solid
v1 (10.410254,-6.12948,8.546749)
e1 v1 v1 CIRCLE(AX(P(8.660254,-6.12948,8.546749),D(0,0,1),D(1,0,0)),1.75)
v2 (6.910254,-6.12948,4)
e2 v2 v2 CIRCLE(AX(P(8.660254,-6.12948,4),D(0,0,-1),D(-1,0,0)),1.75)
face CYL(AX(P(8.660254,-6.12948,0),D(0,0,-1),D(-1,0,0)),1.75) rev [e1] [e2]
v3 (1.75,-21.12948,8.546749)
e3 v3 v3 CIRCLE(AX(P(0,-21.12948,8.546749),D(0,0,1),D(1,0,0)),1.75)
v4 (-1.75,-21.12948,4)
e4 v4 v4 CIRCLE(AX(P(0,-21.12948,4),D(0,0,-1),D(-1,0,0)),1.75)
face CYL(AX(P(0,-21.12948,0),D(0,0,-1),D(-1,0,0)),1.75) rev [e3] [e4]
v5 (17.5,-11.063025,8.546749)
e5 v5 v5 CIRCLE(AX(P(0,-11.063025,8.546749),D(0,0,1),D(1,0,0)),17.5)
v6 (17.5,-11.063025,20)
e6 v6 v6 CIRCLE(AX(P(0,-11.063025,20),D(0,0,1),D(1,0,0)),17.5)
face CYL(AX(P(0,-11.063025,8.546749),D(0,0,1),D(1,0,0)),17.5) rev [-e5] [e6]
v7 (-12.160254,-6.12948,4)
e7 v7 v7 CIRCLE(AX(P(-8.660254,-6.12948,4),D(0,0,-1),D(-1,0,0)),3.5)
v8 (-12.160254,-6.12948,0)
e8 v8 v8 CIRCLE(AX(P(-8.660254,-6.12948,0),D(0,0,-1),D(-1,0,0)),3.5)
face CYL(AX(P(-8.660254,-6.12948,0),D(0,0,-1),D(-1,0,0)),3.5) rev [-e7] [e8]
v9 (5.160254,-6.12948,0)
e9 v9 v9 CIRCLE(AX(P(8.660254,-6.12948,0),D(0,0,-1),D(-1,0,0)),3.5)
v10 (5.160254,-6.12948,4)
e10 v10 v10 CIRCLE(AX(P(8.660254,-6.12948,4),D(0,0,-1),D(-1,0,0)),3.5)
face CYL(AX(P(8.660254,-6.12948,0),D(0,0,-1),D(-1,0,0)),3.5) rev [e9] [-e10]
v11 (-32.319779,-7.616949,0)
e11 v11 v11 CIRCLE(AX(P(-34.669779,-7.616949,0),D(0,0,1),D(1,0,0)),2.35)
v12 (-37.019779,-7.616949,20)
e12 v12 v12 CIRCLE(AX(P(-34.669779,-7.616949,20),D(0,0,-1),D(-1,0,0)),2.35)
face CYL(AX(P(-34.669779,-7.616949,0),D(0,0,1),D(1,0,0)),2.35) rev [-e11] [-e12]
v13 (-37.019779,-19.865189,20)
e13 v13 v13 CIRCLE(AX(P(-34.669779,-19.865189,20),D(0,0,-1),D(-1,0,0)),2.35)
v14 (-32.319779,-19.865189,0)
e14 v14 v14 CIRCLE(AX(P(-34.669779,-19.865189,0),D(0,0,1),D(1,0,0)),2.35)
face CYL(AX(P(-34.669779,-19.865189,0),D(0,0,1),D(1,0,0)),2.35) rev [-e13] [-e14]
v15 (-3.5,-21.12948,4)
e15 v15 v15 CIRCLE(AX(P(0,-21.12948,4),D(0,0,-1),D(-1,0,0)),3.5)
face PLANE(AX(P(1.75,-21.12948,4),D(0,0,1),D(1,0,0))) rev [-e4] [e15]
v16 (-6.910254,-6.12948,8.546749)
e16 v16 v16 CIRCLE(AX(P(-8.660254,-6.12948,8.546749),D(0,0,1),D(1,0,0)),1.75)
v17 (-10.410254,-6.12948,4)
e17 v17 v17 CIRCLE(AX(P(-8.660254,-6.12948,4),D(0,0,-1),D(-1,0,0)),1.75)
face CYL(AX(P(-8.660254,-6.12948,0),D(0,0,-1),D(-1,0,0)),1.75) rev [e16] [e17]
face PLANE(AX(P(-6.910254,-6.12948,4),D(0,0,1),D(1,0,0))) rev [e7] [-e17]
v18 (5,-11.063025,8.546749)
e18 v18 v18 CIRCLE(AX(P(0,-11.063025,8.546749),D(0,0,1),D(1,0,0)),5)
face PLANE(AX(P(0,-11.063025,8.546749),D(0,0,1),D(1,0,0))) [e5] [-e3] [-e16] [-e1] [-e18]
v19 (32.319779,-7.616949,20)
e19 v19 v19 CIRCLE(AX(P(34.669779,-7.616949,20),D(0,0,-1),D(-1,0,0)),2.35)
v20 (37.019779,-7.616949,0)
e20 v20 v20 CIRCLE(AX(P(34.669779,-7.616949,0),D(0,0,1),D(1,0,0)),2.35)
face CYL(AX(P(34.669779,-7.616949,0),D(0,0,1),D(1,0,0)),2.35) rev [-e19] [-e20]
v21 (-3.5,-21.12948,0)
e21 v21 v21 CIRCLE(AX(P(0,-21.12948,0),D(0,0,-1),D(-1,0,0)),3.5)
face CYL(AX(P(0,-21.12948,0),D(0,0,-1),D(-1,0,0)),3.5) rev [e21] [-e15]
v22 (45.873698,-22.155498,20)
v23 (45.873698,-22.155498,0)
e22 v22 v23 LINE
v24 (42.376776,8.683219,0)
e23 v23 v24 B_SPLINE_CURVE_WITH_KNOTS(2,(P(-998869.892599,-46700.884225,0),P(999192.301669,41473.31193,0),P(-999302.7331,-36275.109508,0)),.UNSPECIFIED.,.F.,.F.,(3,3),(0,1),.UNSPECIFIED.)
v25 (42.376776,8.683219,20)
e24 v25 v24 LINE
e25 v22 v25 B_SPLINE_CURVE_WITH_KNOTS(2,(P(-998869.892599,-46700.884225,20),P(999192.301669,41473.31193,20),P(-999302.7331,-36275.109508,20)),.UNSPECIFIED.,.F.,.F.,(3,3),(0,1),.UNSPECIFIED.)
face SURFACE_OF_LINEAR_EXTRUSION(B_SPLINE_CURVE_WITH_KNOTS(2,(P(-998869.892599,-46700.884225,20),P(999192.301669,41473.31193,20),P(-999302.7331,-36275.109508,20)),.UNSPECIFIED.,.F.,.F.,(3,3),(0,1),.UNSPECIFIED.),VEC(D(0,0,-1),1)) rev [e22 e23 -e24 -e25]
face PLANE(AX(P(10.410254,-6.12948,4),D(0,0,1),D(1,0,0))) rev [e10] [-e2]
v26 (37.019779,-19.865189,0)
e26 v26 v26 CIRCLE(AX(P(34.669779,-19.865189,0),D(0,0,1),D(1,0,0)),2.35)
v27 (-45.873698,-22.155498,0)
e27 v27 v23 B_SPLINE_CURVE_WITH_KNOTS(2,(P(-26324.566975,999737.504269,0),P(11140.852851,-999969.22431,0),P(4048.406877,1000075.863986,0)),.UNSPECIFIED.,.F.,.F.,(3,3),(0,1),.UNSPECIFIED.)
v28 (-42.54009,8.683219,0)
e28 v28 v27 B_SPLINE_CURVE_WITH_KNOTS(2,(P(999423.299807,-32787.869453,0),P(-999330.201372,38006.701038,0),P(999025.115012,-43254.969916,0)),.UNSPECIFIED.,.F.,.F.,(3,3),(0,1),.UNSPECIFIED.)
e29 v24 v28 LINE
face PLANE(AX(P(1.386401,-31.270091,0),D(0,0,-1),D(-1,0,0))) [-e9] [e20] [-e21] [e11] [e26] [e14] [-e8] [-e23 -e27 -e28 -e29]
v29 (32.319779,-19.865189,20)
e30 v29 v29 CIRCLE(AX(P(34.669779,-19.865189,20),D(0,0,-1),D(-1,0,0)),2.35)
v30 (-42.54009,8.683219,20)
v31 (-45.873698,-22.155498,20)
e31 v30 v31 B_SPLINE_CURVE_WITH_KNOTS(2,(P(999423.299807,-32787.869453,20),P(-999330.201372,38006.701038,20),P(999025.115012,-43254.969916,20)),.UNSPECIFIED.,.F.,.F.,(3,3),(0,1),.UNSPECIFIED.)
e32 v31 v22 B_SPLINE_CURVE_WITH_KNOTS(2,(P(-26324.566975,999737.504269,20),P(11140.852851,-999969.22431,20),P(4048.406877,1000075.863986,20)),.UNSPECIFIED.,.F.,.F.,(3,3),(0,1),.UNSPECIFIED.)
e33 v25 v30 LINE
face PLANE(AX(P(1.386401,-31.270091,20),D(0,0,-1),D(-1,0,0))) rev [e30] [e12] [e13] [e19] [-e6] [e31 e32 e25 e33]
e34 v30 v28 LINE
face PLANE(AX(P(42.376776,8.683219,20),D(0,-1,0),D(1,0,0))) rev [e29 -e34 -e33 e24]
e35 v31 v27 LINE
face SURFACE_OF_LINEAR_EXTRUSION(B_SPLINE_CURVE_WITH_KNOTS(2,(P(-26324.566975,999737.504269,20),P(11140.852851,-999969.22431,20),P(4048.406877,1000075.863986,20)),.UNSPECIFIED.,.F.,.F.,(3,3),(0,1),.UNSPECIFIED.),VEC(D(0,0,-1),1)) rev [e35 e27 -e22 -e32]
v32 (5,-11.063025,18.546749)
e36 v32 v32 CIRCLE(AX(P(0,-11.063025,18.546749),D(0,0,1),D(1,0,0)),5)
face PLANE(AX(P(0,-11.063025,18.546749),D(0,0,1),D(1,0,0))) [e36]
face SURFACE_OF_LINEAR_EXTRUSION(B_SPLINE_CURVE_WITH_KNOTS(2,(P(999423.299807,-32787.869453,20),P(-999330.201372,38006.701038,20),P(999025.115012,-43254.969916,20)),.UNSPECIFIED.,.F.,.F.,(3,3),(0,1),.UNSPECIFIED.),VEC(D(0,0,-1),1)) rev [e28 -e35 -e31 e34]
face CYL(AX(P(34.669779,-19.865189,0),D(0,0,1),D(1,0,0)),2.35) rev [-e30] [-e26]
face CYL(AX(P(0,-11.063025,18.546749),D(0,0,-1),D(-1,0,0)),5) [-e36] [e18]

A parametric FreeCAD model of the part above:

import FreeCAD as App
import Part
import Sketcher
from FreeCAD import Vector
Q = App.Units.Quantity

doc = App.newDocument("Part")
body = doc.addObject("PartDesign::Body", "Body")

sketch1 = body.newObject("Sketcher::SketchObject", "Sketch")
sketch1.AttachmentSupport = (doc.getObject("XY_Plane"), [""])
sketch1.MapMode = "FlatFace"
sketch1.addGeometry([
    Part.LineSegment(Vector(42.376776, 8.683219, 0), Vector(-42.54009, 8.683219, 0)),
    Part.BSplineCurve([Vector(-42.54009, 8.683219, 0), Vector(-61.647606, -6.072668, 0), Vector(-45.873698, -22.155498, 0)], [3, 3], [0, 1], False, 2, [1, 1, 1], False),
    Part.BSplineCurve([Vector(-45.873698, -22.155498, 0), Vector(0.203235, -40.398997, 0), Vector(45.873698, -22.155498, 0)], [3, 3], [0, 1], False, 2, [1, 1, 1], False),
    Part.BSplineCurve([Vector(45.873698, -22.155498, 0), Vector(61.713203, -6.005951, 0), Vector(42.376776, 8.683219, 0)], [3, 3], [0, 1], False, 2, [1, 1, 1], False),
], False)
sketch1.addConstraint([
    Sketcher.Constraint("Block", 1),
    Sketcher.Constraint("Block", 2),
    Sketcher.Constraint("Block", 3),
    Sketcher.Constraint("Coincident", 0, 2, 1, 1),
    Sketcher.Constraint("Coincident", 3, 2, 0, 1),
])
pad1 = body.newObject("PartDesign::Pad", "Pad")
pad1.Profile = sketch1
pad1.Length = 20

sketch2 = body.newObject("Sketcher::SketchObject", "Sketch001")
sketch2.AttachmentSupport = (doc.getObject("XY_Plane"), [""])
sketch2.MapMode = "FlatFace"
sketch2.AttachmentOffset = App.Placement(Vector(0, 0, 20), App.Rotation())
sketch2.addGeometry(Part.Circle(Vector(0, -11.063025, 0), Vector(0, 0, 1), 17.5), False)
sketch2.addConstraint([
    Sketcher.Constraint("PointOnObject", 0, 3, -2),
    Sketcher.Constraint("Diameter", 0, Q("35 mm")),
    Sketcher.Constraint("DistanceY", 0, 3, -1, 1, Q("11.063025 mm")),
])
pocket1 = body.newObject("PartDesign::Pocket", "Pocket")
pocket1.Profile = sketch2
pocket1.Length = 11.453251

sketch3 = body.newObject("Sketcher::SketchObject", "Sketch002")
sketch3.AttachmentSupport = (doc.getObject("XY_Plane"), [""])
sketch3.MapMode = "FlatFace"
sketch3.AttachmentOffset = App.Placement(Vector(0, 0, 8.546749), App.Rotation())
sketch3.addGeometry(Part.Circle(Vector(0, -11.063025, 0), Vector(0, 0, 1), 5), False)
sketch3.addConstraint([
    Sketcher.Constraint("PointOnObject", 0, 3, -2),
    Sketcher.Constraint("Diameter", 0, Q("10 mm")),
    Sketcher.Constraint("DistanceY", 0, 3, -1, 1, Q("11.063025 mm")),
])
pad2 = body.newObject("PartDesign::Pad", "Pad001")
pad2.Profile = sketch3
pad2.Length = 10

sketch4 = body.newObject("Sketcher::SketchObject", "Sketch003")
sketch4.AttachmentSupport = (doc.getObject("XY_Plane"), [""])
sketch4.MapMode = "FlatFace"
sketch4.addGeometry([
    Part.Circle(Vector(8.660254, -6.12948, 0), Vector(0, 0, 1), 1.75),
    Part.Circle(Vector(0, -21.12948, 0), Vector(0, 0, 1), 1.75),
    Part.Circle(Vector(-8.660254, -6.12948, 0), Vector(0, 0, 1), 1.75),
], False)
sketch4.addConstraint([
    Sketcher.Constraint("Equal", 0, 1),
    Sketcher.Constraint("Equal", 1, 2),
    Sketcher.Constraint("Symmetric", 0, 3, 2, 3, -2),
    Sketcher.Constraint("PointOnObject", 1, 3, -2),
    Sketcher.Constraint("Diameter", 0, Q("3.5 mm")),
    Sketcher.Constraint("DistanceY", 1, 3, 0, 3, Q("15 mm")),
    Sketcher.Constraint("DistanceY", 0, 3, -1, 1, Q("6.12948 mm")),
    Sketcher.Constraint("DistanceX", 2, 3, 0, 3, Q("17.320508 mm")),
])
doc.recompute()
hole = body.newObject("PartDesign::Hole", "Hole")
hole.Profile = sketch4
hole.ThreadType = "None"
hole.Diameter = 3.5
hole.DepthType = "Dimension"
hole.Depth = 11
hole.DrillPoint = "Angled"
hole.DrillPointAngle = 90
hole.HoleCutType = "Counterbore"
hole.HoleCutDiameter = 7
hole.HoleCutDepth = 4
hole.Reversed = True

sketch5 = body.newObject("Sketcher::SketchObject", "Sketch004")
sketch5.AttachmentSupport = (doc.getObject("XY_Plane"), [""])
sketch5.MapMode = "FlatFace"
sketch5.AttachmentOffset = App.Placement(Vector(0, 0, 20), App.Rotation())
sketch5.addGeometry([
    Part.Circle(Vector(-34.669779, -19.865189, 0), Vector(0, 0, 1), 2.35),
    Part.Circle(Vector(-34.669779, -7.616949, 0), Vector(0, 0, 1), 2.35),
    Part.Circle(Vector(34.669779, -7.616949, 0), Vector(0, 0, 1), 2.35),
    Part.Circle(Vector(34.669779, -19.865189, 0), Vector(0, 0, 1), 2.35),
], False)
sketch5.addConstraint([
    Sketcher.Constraint("Equal", 0, 1),
    Sketcher.Constraint("Equal", 1, 2),
    Sketcher.Constraint("Equal", 2, 3),
    Sketcher.Constraint("Symmetric", 1, 3, 2, 3, -2),
    Sketcher.Constraint("Symmetric", 0, 3, 3, 3, -2),
    Sketcher.Constraint("Vertical", 0, 3, 1, 3),
    Sketcher.Constraint("Diameter", 0, Q("4.7 mm")),
    Sketcher.Constraint("DistanceX", 0, 3, -1, 1, Q("34.669779 mm")),
    Sketcher.Constraint("DistanceY", 0, 3, -1, 1, Q("19.865189 mm")),
    Sketcher.Constraint("DistanceY", 1, 3, -1, 1, Q("7.616949 mm")),
])
pocket2 = body.newObject("PartDesign::Pocket", "Pocket001")
pocket2.Profile = sketch5
pocket2.Type = "ThroughAll"
pocket2.Midplane = True

doc.recompute()
